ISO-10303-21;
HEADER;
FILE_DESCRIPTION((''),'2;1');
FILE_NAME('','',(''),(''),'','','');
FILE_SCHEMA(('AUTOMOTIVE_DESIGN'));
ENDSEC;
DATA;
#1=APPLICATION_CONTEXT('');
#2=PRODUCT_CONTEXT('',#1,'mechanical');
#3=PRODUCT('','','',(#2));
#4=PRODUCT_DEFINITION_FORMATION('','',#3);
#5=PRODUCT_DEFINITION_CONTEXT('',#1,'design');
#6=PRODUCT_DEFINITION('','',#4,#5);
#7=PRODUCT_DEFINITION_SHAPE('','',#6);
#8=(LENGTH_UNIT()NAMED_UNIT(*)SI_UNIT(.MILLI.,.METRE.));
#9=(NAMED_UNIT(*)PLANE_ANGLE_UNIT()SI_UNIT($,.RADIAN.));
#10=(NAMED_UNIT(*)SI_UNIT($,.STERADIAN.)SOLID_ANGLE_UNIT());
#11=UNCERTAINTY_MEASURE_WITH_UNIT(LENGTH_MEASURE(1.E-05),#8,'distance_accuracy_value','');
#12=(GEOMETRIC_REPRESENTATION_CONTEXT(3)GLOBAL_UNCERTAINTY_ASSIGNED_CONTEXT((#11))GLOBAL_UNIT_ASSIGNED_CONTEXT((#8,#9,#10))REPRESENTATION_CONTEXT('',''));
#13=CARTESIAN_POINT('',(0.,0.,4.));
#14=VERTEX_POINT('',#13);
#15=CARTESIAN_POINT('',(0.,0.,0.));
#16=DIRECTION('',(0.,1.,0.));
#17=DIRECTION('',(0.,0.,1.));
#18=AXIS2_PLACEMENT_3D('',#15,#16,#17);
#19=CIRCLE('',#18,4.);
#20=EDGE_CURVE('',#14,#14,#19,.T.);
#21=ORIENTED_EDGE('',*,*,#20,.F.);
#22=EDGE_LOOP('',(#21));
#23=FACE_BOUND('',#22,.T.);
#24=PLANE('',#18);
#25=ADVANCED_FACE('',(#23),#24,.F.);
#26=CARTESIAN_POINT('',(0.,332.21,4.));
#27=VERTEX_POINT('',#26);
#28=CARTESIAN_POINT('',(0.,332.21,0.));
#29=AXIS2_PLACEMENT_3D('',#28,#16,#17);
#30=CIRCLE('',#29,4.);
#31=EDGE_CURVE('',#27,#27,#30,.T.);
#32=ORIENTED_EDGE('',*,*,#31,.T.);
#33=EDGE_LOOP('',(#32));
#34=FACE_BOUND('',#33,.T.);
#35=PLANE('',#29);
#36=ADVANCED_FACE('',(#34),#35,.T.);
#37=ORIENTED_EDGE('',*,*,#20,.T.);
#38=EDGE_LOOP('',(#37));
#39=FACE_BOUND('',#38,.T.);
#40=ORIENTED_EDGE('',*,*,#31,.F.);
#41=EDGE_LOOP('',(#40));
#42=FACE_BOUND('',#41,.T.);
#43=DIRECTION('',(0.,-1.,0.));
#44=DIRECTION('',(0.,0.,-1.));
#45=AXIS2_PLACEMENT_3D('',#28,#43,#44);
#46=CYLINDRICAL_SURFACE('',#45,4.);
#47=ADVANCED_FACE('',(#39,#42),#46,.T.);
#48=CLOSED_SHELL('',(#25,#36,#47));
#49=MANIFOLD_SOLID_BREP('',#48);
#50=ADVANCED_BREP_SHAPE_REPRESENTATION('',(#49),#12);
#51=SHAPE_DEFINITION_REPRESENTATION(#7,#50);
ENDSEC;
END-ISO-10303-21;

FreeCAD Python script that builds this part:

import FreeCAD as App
import Part
import Sketcher
Q = App.Units.Quantity

doc = App.newDocument("Part")
body = doc.addObject("PartDesign::Body", "Body")

# Sketch on XZ plane
sketch1 = doc.addObject("Sketcher::SketchObject", "Sketch")
body.addObject(sketch1)
sketch1.AttachmentSupport = (doc.XZ_Plane, [""])
sketch1.MapMode = "FlatFace"
sketch1.addGeometry(Part.Circle(App.Vector(0, 0, 0), App.Vector(0, 0, 1), 4), False)
sketch1.addConstraint([
    Sketcher.Constraint("Coincident", 0, 3, -1, 1),
    Sketcher.Constraint("Diameter", 0, Q("8 mm")),
])
pad1 = doc.addObject("PartDesign::Pad", "Pad")
body.addObject(pad1)
pad1.Profile = sketch1
pad1.Length = 332.21
pad1.Reversed = True

doc.recompute()
